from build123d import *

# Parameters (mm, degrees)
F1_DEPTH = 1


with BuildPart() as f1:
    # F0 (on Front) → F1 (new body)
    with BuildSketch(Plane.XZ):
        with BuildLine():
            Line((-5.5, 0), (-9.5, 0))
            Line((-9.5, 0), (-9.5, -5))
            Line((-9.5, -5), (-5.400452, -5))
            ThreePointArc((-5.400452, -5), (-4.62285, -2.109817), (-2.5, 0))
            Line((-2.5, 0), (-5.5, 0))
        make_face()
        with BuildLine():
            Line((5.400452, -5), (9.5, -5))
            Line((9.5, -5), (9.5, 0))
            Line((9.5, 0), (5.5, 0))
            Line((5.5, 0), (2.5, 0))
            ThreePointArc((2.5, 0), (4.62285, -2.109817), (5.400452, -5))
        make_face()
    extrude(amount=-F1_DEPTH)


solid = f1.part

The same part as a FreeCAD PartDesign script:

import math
import FreeCAD as App
import Part
import Sketcher
from FreeCAD import Vector

doc = App.newDocument("Part")
body = doc.addObject("PartDesign::Body", "Body")
body.AllowCompound = True

# Sketch on XZ plane
sketch1 = body.newObject("Sketcher::SketchObject", "Sketch")
sketch1.AttachmentSupport = (doc.getObject("XZ_Plane"), [""])
sketch1.MapMode = "FlatFace"
sketch1.addGeometry([
    Part.LineSegment(Vector(-9.5, 0, 0), Vector(-9.5, -5, 0)),  # 0
    Part.LineSegment(Vector(-9.5, -5, 0), Vector(-5.4, -5, 0)),  # 1
    Part.ArcOfCircle(Part.Circle(Vector(0.4, -5, 0), Vector(0, 0, 1), 5.8), math.radians(120), math.radians(180)),  # 2
    Part.LineSegment(Vector(-2.5, 0, 0), Vector(-9.5, 0, 0)),  # 3
    Part.LineSegment(Vector(5.4, -5, 0), Vector(9.5, -5, 0)),  # 4
    Part.LineSegment(Vector(9.5, -5, 0), Vector(9.5, 0, 0)),  # 5
    Part.LineSegment(Vector(9.5, 0, 0), Vector(2.5, 0, 0)),  # 6
    Part.ArcOfCircle(Part.Circle(Vector(-0.4, -5, 0), Vector(0, 0, 1), 5.8), math.radians(0), math.radians(60)),  # 7
], False)
sketch1.addConstraint([
    Sketcher.Constraint("Coincident", 0, 2, 1, 1),
    Sketcher.Constraint("Coincident", 1, 2, 2, 2),
    Sketcher.Constraint("Coincident", 2, 1, 3, 1),
    Sketcher.Constraint("Coincident", 3, 2, 0, 1),
    Sketcher.Constraint("Coincident", 4, 2, 5, 1),
    Sketcher.Constraint("Coincident", 5, 2, 6, 1),
    Sketcher.Constraint("Coincident", 6, 2, 7, 2),
    Sketcher.Constraint("Coincident", 7, 1, 4, 1),
    Sketcher.Constraint("Vertical", 0),
    Sketcher.Constraint("Horizontal", 1),
    Sketcher.Constraint("Horizontal", 3),
    Sketcher.Constraint("Horizontal", 4),
    Sketcher.Constraint("Vertical", 5),
    Sketcher.Constraint("Horizontal", 6),
    Sketcher.Constraint("Equal", 2, 7),
    Sketcher.Constraint("Symmetric", 3, 2, 5, 2, -1, 1),
    Sketcher.Constraint("Symmetric", 2, 3, 7, 3, -2),
    Sketcher.Constraint("PointOnObject", 2, 1, -1),
    Sketcher.Constraint("Horizontal", 7, 3, 0, 2),
    Sketcher.Constraint("Horizontal", 1, 2, 4, 2),
    Sketcher.Constraint("DistanceX", 3, 2, 3, 1, 7.0),
    Sketcher.Constraint("DistanceY", 0, 2, 0, 1, 5.0),
    Sketcher.Constraint("DistanceX", 2, 1, 4, 2, 12.0),
    Sketcher.Constraint("Radius", 2, 5.759897),
])
pad1 = body.newObject("PartDesign::Pad", "Pad")
pad1.Profile = sketch1
pad1.Length = 1
pad1.Reversed = True

doc.recompute()
